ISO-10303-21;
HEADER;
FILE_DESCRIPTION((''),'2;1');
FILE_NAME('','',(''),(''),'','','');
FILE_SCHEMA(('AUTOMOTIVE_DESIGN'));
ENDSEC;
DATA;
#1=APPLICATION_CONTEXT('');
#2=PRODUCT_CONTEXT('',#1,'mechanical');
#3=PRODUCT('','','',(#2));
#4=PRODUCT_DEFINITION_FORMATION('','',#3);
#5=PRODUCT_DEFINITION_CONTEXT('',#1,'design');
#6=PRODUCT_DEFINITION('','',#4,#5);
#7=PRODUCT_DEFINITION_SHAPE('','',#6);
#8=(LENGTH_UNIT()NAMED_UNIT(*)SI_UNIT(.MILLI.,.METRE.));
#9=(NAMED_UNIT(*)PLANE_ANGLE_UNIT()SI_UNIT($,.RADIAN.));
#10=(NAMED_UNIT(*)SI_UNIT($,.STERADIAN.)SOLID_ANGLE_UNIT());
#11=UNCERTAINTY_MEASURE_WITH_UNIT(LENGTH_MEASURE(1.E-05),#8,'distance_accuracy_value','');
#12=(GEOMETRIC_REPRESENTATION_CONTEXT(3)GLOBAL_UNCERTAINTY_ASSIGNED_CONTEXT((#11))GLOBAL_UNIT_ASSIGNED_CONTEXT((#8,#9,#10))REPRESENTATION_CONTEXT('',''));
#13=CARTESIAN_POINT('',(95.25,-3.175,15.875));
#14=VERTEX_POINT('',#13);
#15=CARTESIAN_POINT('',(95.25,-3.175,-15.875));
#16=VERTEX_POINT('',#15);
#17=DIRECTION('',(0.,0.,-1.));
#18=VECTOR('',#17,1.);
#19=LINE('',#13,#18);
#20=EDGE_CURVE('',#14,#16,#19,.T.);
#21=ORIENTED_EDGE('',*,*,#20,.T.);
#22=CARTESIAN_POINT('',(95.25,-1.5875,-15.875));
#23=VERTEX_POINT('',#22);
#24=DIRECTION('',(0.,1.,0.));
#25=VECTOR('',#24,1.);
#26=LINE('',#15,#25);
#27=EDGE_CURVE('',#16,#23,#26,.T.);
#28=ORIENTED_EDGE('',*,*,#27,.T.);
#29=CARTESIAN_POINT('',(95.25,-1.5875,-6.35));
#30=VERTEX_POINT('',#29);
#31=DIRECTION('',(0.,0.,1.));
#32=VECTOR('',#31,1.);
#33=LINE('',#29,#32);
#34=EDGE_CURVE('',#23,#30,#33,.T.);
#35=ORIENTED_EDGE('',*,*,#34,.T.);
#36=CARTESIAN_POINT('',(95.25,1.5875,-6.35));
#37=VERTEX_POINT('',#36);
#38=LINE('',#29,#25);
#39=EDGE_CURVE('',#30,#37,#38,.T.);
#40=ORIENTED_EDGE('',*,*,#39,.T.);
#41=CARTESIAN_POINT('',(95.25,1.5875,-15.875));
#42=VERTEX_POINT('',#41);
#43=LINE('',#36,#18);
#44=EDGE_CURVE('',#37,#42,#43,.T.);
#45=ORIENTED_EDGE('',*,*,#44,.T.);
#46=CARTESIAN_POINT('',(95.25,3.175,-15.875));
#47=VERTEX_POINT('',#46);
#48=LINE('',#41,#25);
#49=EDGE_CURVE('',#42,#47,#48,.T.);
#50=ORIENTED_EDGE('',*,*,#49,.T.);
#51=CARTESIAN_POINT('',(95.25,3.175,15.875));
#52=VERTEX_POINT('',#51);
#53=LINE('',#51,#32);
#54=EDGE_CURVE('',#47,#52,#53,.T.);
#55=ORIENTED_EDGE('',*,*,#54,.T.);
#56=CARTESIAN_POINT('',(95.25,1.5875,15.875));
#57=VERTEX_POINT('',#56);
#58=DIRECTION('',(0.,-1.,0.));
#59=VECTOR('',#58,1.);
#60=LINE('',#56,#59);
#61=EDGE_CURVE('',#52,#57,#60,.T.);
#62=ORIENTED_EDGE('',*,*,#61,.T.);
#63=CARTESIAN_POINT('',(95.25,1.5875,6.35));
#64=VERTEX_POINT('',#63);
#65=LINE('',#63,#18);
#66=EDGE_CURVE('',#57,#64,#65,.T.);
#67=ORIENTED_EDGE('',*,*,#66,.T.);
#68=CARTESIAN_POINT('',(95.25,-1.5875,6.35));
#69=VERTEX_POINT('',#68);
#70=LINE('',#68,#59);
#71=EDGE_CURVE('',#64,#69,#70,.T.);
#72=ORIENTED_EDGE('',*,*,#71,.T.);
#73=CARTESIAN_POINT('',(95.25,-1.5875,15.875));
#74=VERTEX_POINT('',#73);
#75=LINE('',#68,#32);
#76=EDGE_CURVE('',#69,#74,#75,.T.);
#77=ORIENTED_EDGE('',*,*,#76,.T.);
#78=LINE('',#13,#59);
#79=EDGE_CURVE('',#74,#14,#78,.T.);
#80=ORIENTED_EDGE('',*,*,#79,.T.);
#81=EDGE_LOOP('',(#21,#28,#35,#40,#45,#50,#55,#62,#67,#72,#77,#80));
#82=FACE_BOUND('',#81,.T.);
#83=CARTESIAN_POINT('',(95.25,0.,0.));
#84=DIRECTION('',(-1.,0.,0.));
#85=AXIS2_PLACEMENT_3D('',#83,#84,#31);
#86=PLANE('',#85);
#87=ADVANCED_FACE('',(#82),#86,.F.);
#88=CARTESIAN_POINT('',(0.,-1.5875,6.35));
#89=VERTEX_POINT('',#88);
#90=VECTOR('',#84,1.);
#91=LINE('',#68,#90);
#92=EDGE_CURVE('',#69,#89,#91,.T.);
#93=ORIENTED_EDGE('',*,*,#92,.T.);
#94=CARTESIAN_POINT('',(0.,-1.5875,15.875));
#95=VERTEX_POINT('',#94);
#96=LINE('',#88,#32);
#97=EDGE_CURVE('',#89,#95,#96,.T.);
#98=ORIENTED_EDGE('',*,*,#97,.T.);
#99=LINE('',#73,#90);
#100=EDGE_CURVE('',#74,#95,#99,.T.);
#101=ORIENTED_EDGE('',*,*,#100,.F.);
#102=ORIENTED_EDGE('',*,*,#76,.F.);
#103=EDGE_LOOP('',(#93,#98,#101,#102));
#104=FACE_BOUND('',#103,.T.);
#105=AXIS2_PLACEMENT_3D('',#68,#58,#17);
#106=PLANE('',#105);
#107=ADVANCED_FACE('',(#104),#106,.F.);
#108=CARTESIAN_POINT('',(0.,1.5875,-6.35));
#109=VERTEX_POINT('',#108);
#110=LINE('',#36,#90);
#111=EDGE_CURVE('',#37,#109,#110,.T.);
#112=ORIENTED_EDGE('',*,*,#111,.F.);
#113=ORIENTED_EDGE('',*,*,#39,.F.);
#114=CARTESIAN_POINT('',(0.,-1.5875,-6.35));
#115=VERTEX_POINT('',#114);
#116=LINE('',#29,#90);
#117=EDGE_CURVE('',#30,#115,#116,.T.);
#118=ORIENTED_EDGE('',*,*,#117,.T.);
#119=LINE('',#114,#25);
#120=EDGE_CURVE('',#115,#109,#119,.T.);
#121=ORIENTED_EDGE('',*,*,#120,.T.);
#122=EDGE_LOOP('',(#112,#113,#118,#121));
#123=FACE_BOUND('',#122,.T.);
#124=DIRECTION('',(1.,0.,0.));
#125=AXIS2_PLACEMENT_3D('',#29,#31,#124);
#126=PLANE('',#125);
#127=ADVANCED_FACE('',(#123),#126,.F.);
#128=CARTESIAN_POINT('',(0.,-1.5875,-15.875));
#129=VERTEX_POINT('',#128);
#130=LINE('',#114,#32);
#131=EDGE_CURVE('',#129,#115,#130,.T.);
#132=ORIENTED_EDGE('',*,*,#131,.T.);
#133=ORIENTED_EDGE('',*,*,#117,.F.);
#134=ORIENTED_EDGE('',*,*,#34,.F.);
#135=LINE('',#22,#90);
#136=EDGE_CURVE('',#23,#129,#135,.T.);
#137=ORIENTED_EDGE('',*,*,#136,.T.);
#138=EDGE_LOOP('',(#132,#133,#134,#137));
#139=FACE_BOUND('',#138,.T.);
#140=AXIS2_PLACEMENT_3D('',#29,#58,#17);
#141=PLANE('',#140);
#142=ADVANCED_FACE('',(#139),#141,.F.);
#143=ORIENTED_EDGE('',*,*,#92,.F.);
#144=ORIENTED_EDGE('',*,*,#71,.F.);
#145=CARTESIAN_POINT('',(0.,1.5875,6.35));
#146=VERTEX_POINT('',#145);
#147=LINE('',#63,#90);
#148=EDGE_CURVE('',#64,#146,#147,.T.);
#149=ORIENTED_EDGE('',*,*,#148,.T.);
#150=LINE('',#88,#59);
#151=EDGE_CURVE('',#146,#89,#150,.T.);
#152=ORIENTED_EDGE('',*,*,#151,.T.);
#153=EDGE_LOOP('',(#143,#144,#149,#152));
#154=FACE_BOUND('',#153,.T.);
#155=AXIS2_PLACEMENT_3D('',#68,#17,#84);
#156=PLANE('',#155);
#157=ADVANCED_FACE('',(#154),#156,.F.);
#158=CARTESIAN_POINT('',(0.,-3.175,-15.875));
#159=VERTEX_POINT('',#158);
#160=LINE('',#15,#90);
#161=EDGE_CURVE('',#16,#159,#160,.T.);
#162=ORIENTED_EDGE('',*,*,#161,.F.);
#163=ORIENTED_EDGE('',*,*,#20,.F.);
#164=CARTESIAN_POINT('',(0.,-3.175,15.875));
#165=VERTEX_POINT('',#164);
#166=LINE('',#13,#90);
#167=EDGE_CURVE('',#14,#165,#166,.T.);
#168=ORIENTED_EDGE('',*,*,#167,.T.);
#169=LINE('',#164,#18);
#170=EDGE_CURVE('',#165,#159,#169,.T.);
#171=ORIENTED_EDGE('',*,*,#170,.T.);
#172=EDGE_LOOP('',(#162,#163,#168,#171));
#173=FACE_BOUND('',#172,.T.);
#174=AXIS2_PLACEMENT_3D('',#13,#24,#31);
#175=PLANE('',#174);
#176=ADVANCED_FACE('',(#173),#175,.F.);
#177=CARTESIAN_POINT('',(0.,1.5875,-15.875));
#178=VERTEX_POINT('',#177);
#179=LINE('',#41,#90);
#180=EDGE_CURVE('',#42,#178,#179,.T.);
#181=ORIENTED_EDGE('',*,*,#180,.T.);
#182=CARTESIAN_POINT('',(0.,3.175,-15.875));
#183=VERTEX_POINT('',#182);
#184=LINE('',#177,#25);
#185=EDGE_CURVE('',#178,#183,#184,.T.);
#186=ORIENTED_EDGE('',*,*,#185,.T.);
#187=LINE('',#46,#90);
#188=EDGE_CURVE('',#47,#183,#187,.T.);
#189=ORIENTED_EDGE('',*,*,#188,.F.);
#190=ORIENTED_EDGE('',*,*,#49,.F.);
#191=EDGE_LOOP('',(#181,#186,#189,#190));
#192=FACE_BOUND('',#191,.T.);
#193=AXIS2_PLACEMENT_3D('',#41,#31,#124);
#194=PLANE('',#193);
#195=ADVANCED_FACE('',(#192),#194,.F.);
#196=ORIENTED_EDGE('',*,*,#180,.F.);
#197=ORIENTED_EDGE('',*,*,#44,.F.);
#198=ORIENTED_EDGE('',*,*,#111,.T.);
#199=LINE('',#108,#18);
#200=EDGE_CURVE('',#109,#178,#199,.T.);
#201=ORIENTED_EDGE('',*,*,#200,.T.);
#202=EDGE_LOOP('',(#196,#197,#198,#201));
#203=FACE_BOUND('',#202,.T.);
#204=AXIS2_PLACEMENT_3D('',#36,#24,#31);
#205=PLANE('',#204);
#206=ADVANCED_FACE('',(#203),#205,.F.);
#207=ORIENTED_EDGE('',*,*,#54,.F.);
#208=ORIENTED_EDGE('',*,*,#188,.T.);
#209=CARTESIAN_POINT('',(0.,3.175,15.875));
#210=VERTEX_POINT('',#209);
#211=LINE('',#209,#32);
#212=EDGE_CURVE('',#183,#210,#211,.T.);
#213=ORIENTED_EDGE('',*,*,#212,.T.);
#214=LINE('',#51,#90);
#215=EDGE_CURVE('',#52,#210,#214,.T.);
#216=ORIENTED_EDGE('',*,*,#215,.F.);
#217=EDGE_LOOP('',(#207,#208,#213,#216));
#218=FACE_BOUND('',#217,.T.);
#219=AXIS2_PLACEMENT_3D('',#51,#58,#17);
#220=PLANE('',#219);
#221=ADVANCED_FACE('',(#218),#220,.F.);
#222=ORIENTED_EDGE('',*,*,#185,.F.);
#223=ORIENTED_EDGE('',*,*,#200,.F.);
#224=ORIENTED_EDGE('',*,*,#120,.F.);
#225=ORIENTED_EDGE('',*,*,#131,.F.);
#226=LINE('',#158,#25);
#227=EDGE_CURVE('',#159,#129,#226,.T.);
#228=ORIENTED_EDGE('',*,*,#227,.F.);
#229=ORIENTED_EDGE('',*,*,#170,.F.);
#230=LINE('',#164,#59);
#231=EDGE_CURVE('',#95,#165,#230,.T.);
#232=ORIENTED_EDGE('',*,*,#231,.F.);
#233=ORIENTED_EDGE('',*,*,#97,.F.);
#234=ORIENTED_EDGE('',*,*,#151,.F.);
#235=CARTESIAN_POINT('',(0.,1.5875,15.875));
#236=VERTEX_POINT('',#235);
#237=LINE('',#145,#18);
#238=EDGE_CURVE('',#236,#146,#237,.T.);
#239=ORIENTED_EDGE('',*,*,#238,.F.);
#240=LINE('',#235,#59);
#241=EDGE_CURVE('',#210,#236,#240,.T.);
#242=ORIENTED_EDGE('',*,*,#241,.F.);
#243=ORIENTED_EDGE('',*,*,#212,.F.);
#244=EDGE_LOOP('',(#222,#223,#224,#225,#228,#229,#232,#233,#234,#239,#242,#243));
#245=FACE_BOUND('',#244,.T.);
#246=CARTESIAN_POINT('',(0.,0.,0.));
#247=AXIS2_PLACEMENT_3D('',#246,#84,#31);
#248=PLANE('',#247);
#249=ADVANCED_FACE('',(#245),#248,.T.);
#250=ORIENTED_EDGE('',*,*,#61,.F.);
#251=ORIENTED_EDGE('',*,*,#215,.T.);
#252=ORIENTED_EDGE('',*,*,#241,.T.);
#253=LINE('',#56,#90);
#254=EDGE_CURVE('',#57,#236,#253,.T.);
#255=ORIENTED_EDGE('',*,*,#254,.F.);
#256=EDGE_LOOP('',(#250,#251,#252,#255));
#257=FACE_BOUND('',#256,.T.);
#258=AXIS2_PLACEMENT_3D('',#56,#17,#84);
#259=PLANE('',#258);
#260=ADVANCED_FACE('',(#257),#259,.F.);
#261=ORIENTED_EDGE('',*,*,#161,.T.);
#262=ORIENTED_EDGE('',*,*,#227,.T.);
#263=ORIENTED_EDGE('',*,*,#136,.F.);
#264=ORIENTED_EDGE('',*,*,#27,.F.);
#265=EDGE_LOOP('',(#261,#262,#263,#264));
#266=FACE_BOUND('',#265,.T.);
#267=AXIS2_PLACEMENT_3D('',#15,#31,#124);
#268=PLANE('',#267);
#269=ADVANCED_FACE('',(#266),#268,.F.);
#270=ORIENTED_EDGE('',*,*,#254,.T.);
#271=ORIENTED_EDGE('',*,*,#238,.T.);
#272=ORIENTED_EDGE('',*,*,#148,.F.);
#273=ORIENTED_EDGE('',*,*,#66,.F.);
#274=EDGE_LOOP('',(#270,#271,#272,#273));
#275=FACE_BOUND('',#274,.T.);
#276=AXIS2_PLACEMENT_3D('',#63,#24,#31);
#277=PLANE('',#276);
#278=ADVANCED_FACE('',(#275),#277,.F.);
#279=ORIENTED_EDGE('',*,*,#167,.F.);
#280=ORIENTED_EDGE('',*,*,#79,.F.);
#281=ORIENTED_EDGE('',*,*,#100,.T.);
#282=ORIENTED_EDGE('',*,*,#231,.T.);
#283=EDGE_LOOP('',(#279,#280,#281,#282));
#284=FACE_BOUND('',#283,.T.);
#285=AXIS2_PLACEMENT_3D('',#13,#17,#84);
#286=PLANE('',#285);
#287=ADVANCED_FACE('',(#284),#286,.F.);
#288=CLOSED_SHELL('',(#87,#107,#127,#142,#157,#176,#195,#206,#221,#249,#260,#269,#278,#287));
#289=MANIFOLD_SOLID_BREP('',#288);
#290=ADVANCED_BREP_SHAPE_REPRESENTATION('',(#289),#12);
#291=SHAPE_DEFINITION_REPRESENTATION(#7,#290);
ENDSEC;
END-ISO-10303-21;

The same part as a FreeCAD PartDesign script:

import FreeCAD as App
import Part
import Sketcher
from FreeCAD import Vector
Q = App.Units.Quantity


def add_polygon(sketch, points):
    """Adds a closed chain of lines whose ends are joined by coincident constraints."""
    first, n = sketch.GeometryCount, len(points)
    for a, b in zip(points, points[1:] + points[:1]):
        sketch.addGeometry(Part.LineSegment(App.Vector(*a, 0), App.Vector(*b, 0)), False)
    for i in range(n):
        sketch.addConstraint(Sketcher.Constraint("Coincident", first + i, 2, first + (i + 1) % n, 1))

doc = App.newDocument("Part")
body = doc.addObject("PartDesign::Body", "Body")

# Sketch on YZ plane
sketch1 = body.newObject("Sketcher::SketchObject", "Sketch")
sketch1.AttachmentSupport = (doc.getObject("YZ_Plane"), [""])
sketch1.MapMode = "FlatFace"
add_polygon(sketch1, [(3.2, 15.9), (1.6, 15.9), (1.6, 6.3), (-1.6, 6.3), (-1.6, 15.9), (-3.2, 15.9), (-3.2, -15.9), (-1.6, -15.9), (-1.6, -6.3), (1.6, -6.3), (1.6, -15.9), (3.2, -15.9)])  # lines 0-11
sketch1.addConstraint(Sketcher.Constraint("Horizontal", 0))
sketch1.addConstraint(Sketcher.Constraint("Vertical", 1))
sketch1.addConstraint(Sketcher.Constraint("Horizontal", 2))
sketch1.addConstraint(Sketcher.Constraint("Vertical", 3))
sketch1.addConstraint(Sketcher.Constraint("Horizontal", 4))
sketch1.addConstraint(Sketcher.Constraint("Vertical", 5))
sketch1.addConstraint(Sketcher.Constraint("Horizontal", 6))
sketch1.addConstraint(Sketcher.Constraint("Vertical", 7))
sketch1.addConstraint(Sketcher.Constraint("Horizontal", 8))
sketch1.addConstraint(Sketcher.Constraint("Vertical", 9))
sketch1.addConstraint(Sketcher.Constraint("Horizontal", 10))
sketch1.addConstraint(Sketcher.Constraint("Vertical", 11))
sketch1.addConstraint(Sketcher.Constraint("Symmetric", 0, 2, 6, 2, -1, 1))
sketch1.addConstraint(Sketcher.Constraint("Symmetric", 2, 2, 8, 2, -1, 1))
sketch1.addConstraint(Sketcher.Constraint("Symmetric", 4, 2, 10, 2, -1, 1))
sketch1.addConstraint(Sketcher.Constraint("Symmetric", 0, 2, 3, 2, -2))
sketch1.addConstraint(Sketcher.Constraint("DistanceY", 5, 2, 5, 1, Q("1.25 in")))
sketch1.addConstraint(Sketcher.Constraint("DistanceY", 7, 2, 2, 2, Q("0.5 in")))
sketch1.addConstraint(Sketcher.Constraint("DistanceX", 0, 2, 0, 1, Q("0.0625 in")))
sketch1.addConstraint(Sketcher.Constraint("DistanceX", 2, 2, 2, 1, Q("0.125 in")))
pad1 = body.newObject("PartDesign::Pad", "Pad")
pad1.Profile = sketch1
pad1.Length = Q("3.75 in")

doc.recompute()
